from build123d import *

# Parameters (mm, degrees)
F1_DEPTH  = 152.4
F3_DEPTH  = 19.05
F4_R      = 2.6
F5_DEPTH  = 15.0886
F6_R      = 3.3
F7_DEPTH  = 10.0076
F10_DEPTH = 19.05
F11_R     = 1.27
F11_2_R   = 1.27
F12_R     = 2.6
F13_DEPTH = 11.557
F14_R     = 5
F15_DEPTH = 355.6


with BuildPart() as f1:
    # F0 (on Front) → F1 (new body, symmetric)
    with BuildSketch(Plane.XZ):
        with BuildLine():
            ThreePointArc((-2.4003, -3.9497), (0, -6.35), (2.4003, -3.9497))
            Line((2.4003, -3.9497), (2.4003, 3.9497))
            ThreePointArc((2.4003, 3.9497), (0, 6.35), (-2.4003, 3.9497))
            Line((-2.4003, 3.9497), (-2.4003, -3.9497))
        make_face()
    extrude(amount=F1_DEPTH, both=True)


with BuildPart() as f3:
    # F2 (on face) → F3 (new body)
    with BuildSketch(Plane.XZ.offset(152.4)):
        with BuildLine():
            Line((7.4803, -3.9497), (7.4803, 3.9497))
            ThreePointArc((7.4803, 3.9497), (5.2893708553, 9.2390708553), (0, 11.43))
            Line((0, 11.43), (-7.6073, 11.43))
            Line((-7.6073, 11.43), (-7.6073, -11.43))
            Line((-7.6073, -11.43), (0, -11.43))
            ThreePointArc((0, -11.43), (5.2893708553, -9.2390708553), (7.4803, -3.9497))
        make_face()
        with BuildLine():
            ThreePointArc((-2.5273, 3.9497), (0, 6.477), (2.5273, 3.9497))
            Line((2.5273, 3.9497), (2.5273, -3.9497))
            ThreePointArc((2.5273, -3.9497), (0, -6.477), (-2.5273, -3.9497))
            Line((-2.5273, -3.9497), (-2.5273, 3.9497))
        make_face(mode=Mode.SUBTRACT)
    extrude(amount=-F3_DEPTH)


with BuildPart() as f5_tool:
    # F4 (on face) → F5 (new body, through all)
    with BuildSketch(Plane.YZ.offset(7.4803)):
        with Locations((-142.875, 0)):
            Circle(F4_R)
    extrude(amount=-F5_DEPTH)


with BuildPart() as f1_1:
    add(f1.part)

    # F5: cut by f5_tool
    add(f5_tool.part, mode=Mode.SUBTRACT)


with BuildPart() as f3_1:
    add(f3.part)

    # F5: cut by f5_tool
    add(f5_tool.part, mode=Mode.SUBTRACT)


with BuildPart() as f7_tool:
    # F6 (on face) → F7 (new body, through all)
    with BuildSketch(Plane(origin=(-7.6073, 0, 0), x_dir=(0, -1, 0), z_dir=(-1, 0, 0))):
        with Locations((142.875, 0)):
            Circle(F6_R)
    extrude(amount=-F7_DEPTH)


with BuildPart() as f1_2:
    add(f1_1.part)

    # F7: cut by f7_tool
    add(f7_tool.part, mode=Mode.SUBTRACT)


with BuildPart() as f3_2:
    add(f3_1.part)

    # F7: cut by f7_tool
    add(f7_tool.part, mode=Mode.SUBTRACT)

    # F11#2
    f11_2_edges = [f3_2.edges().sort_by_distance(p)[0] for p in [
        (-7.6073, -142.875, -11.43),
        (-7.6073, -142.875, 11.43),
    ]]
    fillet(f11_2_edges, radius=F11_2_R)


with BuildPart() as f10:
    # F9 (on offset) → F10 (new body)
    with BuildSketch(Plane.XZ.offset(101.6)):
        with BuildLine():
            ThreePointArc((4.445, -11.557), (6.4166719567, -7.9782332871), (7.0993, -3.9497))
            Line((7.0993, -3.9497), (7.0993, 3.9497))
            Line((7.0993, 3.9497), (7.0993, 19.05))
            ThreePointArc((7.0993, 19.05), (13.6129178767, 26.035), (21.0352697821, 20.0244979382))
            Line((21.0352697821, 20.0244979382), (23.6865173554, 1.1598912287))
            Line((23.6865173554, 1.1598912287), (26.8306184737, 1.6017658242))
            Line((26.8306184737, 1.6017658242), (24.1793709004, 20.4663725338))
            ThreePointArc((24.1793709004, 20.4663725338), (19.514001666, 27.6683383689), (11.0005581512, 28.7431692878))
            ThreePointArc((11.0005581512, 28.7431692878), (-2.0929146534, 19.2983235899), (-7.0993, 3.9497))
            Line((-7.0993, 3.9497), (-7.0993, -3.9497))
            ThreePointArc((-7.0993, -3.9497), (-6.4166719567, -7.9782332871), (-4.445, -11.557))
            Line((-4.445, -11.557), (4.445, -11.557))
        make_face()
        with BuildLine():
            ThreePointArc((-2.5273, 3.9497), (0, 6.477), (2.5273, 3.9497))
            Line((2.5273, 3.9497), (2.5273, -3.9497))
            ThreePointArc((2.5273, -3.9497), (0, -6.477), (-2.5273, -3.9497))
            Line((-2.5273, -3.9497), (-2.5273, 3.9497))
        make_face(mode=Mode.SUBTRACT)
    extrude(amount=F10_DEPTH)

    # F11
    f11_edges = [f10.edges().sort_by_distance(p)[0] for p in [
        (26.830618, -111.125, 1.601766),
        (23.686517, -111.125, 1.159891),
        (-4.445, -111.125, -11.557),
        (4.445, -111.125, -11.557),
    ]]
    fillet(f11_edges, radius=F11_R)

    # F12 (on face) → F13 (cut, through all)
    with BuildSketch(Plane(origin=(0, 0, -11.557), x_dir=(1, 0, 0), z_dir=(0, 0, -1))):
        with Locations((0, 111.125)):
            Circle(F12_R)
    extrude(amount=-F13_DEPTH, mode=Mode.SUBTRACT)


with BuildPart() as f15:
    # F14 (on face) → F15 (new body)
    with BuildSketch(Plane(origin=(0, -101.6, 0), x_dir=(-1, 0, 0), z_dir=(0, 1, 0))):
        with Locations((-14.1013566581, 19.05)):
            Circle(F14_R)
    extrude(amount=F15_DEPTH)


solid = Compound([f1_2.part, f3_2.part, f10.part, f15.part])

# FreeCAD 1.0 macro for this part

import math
import FreeCAD as App
import Part
import Sketcher
Q = App.Units.Quantity


def edges_at(feature, points):
    """Names of the edges that pass closest to the given points."""
    edges = feature.Shape.Edges
    near = lambda p: min(range(len(edges)), key=lambda i: edges[i].distToShape(Part.Vertex(*p))[0])
    return sorted({f"Edge{near(p) + 1}" for p in points})

doc = App.newDocument("Part")
body = doc.addObject("PartDesign::Body", "Body")

# Sketch on XZ plane
sketch1 = body.newObject("Sketcher::SketchObject", "Sketch")
sketch1.AttachmentSupport = (doc.getObject("XZ_Plane"), [""])
sketch1.MapMode = "FlatFace"
sketch1.addGeometry([
    Part.ArcOfCircle(Part.Circle(App.Vector(0, -3.9, 0), App.Vector(0, 0, 1), 2.4), math.radians(180), math.radians(360)),
    Part.LineSegment(App.Vector(2.4, -3.9, 0), App.Vector(2.4, 3.9, 0)),
    Part.ArcOfCircle(Part.Circle(App.Vector(0, 3.9, 0), App.Vector(0, 0, 1), 2.4), math.radians(0), math.radians(180)),
    Part.LineSegment(App.Vector(-2.4, 3.9, 0), App.Vector(-2.4, -3.9, 0)),
], False)
sketch1.addConstraint([
    Sketcher.Constraint("Tangent", 0, 2, 1, 1),
    Sketcher.Constraint("Tangent", 1, 2, 2, 1),
    Sketcher.Constraint("Tangent", 2, 2, 3, 1),
    Sketcher.Constraint("Tangent", 3, 2, 0, 1),
    Sketcher.Constraint("Vertical", 1),
    Sketcher.Constraint("Vertical", 3),
    Sketcher.Constraint("Symmetric", 0, 3, 2, 3, -1, 1),
    Sketcher.Constraint("Radius", 0, Q("0.0945 in")),
    Sketcher.Constraint("DistanceY", 1, 1, 1, 2, Q("0.311 in")),
])
pad1 = body.newObject("PartDesign::Pad", "Pad")
pad1.Profile = sketch1
pad1.Length = Q("12 in")
pad1.Midplane = True
body2 = doc.addObject("PartDesign::Body", "Body001")

# Sketch on XZ plane
sketch2 = body2.newObject("Sketcher::SketchObject", "Sketch001")
sketch2.AttachmentSupport = (doc.getObject("XZ_Plane001"), [""])
sketch2.MapMode = "FlatFace"
sketch2.AttachmentOffset = App.Placement(App.Vector(0, 0, 6 * 25.4), App.Rotation())
sketch2.addGeometry([
    Part.LineSegment(App.Vector(7.5, -3.9, 0), App.Vector(7.5, 3.9, 0)),  # 0
    Part.ArcOfCircle(Part.Circle(App.Vector(0, 3.9, 0), App.Vector(0, 0, 1), 7.5), math.radians(0), math.radians(90)),  # 1
    Part.LineSegment(App.Vector(0, 11.4, 0), App.Vector(-7.6, 11.4, 0)),  # 2
    Part.LineSegment(App.Vector(-7.6, 11.4, 0), App.Vector(-7.6, -11.4, 0)),  # 3
    Part.LineSegment(App.Vector(-7.6, -11.4, 0), App.Vector(0, -11.4, 0)),  # 4
    Part.ArcOfCircle(Part.Circle(App.Vector(0, -3.9, 0), App.Vector(0, 0, 1), 7.5), math.radians(-90), math.radians(0)),  # 5
    Part.LineSegment(App.Vector(-2.5, -3.9, 0), App.Vector(-2.5, 3.9, 0)),  # 6
    Part.ArcOfCircle(Part.Circle(App.Vector(0, 3.9, 0), App.Vector(0, 0, 1), 2.5), math.radians(0), math.radians(180)),  # 7
    Part.LineSegment(App.Vector(2.5, 3.9, 0), App.Vector(2.5, -3.9, 0)),  # 8
    Part.ArcOfCircle(Part.Circle(App.Vector(0, -3.9, 0), App.Vector(0, 0, 1), 2.5), math.radians(180), math.radians(360)),  # 9
], False)
sketch2.addConstraint([
    Sketcher.Constraint("Tangent", 0, 2, 1, 1),
    Sketcher.Constraint("Tangent", 1, 2, 2, 1),
    Sketcher.Constraint("Coincident", 2, 2, 3, 1),
    Sketcher.Constraint("Coincident", 3, 2, 4, 1),
    Sketcher.Constraint("Tangent", 4, 2, 5, 1),
    Sketcher.Constraint("Tangent", 5, 2, 0, 1),
    Sketcher.Constraint("Tangent", 6, 2, 7, 2),
    Sketcher.Constraint("Tangent", 7, 1, 8, 1),
    Sketcher.Constraint("Tangent", 8, 2, 9, 2),
    Sketcher.Constraint("Tangent", 9, 1, 6, 1),
    Sketcher.Constraint("Vertical", 0),
    Sketcher.Constraint("Horizontal", 2),
    Sketcher.Constraint("Vertical", 3),
    Sketcher.Constraint("Horizontal", 4),
    Sketcher.Constraint("Vertical", 6),
    Sketcher.Constraint("Vertical", 8),
    Sketcher.Constraint("Coincident", 7, 3, 1, 3),
    Sketcher.Constraint("Coincident", 9, 3, 5, 3),
    Sketcher.Constraint("Symmetric", 1, 3, 5, 3, -1, 1),
    Sketcher.Constraint("DistanceY", 3, 2, 3, 1, Q("0.9 in")),
    Sketcher.Constraint("Radius", 1, Q("0.2945 in")),
    Sketcher.Constraint("Radius", 7, Q("0.0995 in")),
    Sketcher.Constraint("DistanceX", 2, 2, 2, 1, Q("0.2995 in")),
])
pad2 = body2.newObject("PartDesign::Pad", "Pad001")
pad2.Profile = sketch2
pad2.Length = Q("0.75 in")
pad2.Reversed = True
body3 = doc.addObject("PartDesign::Body", "Body002")

# Sketch on YZ plane
sketch3 = body3.newObject("Sketcher::SketchObject", "Sketch002")
sketch3.AttachmentSupport = (doc.getObject("YZ_Plane002"), [""])
sketch3.MapMode = "FlatFace"
sketch3.AttachmentOffset = App.Placement(App.Vector(0, 0, 0.2945 * 25.4), App.Rotation())
sketch3.addGeometry(Part.Circle(App.Vector(-142.9, 0, 0), App.Vector(0, 0, 1), 2.6), False)
sketch3.addConstraint([
    Sketcher.Constraint("PointOnObject", 0, 3, -1),
    Sketcher.Constraint("Diameter", 0, Q("5.2 mm")),
    Sketcher.Constraint("DistanceX", 0, 3, -1, 1, Q("5.625 in")),
])
pad3 = body3.newObject("PartDesign::Pad", "Pad002")
pad3.Profile = sketch3
pad3.Length = 15.0886
pad3.Reversed = True
doc.recompute()

body4 = doc.addObject("PartDesign::Body", "Body003")
body4.BaseFeature = body3
boolean = body.newObject("PartDesign::Boolean", "Boolean")
boolean.Type = "Cut"
boolean.addObjects([body4])
doc.recompute()

boolean2 = body2.newObject("PartDesign::Boolean", "Boolean001")
boolean2.Type = "Cut"
boolean2.addObjects([body3])
body5 = doc.addObject("PartDesign::Body", "Body004")

# Sketch on YZ plane
sketch4 = body5.newObject("Sketcher::SketchObject", "Sketch003")
sketch4.AttachmentSupport = (doc.getObject("YZ_Plane004"), [""])
sketch4.MapMode = "FlatFace"
sketch4.AttachmentOffset = App.Placement(App.Vector(0, 0, -0.2995 * 25.4), App.Rotation())
sketch4.addGeometry(Part.Circle(App.Vector(-142.9, 0, 0), App.Vector(0, 0, 1), 3.3), False)
sketch4.addConstraint([
    Sketcher.Constraint("PointOnObject", 0, 3, -1),
    Sketcher.Constraint("Diameter", 0, Q("6.6 mm")),
    Sketcher.Constraint("DistanceX", 0, 3, -1, 1, Q("5.625 in")),
])
pad4 = body5.newObject("PartDesign::Pad", "Pad003")
pad4.Profile = sketch4
pad4.Length = Q("0.394 in")
doc.recompute()

body6 = doc.addObject("PartDesign::Body", "Body005")
body6.BaseFeature = body5
boolean3 = body.newObject("PartDesign::Boolean", "Boolean002")
boolean3.Type = "Cut"
boolean3.addObjects([body6])
doc.recompute()

boolean4 = body2.newObject("PartDesign::Boolean", "Boolean003")
boolean4.Type = "Cut"
boolean4.addObjects([body5])
doc.recompute()

fillet = body2.newObject("PartDesign::Fillet", "Fillet")
fillet.Base = (boolean4, edges_at(boolean4, [(-7.607, -142.875, -11.43), (-7.607, -142.875, 11.43)]))
fillet.Radius = Q("0.05 in")
body7 = doc.addObject("PartDesign::Body", "Body006")

# Sketch on XZ plane
sketch5 = body7.newObject("Sketcher::SketchObject", "Sketch004")
sketch5.AttachmentSupport = (doc.getObject("XZ_Plane006"), [""])
sketch5.MapMode = "FlatFace"
sketch5.AttachmentOffset = App.Placement(App.Vector(0, 0, 4 * 25.4), App.Rotation())
sketch5.addGeometry([
    Part.ArcOfCircle(Part.Circle(App.Vector(-5.1, -3.9, 0), App.Vector(0, 0, 1), 12.2), math.radians(-38), math.radians(0)),  # 0
    Part.LineSegment(App.Vector(7.1, -3.9, 0), App.Vector(7.1, 19.1, 0)),  # 1
    Part.ArcOfCircle(Part.Circle(App.Vector(14.1, 19.1, 0), App.Vector(0, 0, 1), 7), math.radians(8), math.radians(180)),  # 2
    Part.LineSegment(App.Vector(21, 20, 0), App.Vector(23.7, 1.2, 0)),  # 3
    Part.LineSegment(App.Vector(23.7, 1.2, 0), App.Vector(26.8, 1.6, 0)),  # 4
    Part.LineSegment(App.Vector(26.8, 1.6, 0), App.Vector(24.2, 20.5, 0)),  # 5
    Part.ArcOfCircle(Part.Circle(App.Vector(14.1, 19.1, 0), App.Vector(0, 0, 1), 10.2), math.radians(8), math.radians(108)),  # 6
    Part.ArcOfCircle(Part.Circle(App.Vector(18.9, 3.9, 0), App.Vector(0, 0, 1), 26), math.radians(108), math.radians(180)),  # 7
    Part.LineSegment(App.Vector(-7.1, 3.9, 0), App.Vector(-7.1, -3.9, 0)),  # 8
    Part.ArcOfCircle(Part.Circle(App.Vector(5.1, -3.9, 0), App.Vector(0, 0, 1), 12.2), math.radians(180), math.radians(218)),  # 9
    Part.LineSegment(App.Vector(-4.4, -11.6, 0), App.Vector(4.4, -11.6, 0)),  # 10
    Part.LineSegment(App.Vector(-2.5, -3.9, 0), App.Vector(-2.5, 3.9, 0)),  # 11
    Part.ArcOfCircle(Part.Circle(App.Vector(0, 3.9, 0), App.Vector(0, 0, 1), 2.5), math.radians(0), math.radians(180)),  # 12
    Part.LineSegment(App.Vector(2.5, 3.9, 0), App.Vector(2.5, -3.9, 0)),  # 13
    Part.ArcOfCircle(Part.Circle(App.Vector(0, -3.9, 0), App.Vector(0, 0, 1), 2.5), math.radians(180), math.radians(360)),  # 14
], False)
sketch5.addConstraint([
    Sketcher.Constraint("Tangent", 0, 2, 1, 1),
    Sketcher.Constraint("Tangent", 1, 2, 2, 2),
    Sketcher.Constraint("Tangent", 2, 1, 3, 1),
    Sketcher.Constraint("Coincident", 3, 2, 4, 1),
    Sketcher.Constraint("Coincident", 4, 2, 5, 1),
    Sketcher.Constraint("Tangent", 5, 2, 6, 1),
    Sketcher.Constraint("Tangent", 6, 2, 7, 1),
    Sketcher.Constraint("Tangent", 7, 2, 8, 1),
    Sketcher.Constraint("Tangent", 8, 2, 9, 1),
    Sketcher.Constraint("Coincident", 9, 2, 10, 1),
    Sketcher.Constraint("Coincident", 10, 2, 0, 1),
    Sketcher.Constraint("Tangent", 11, 2, 12, 2),
    Sketcher.Constraint("Tangent", 12, 1, 13, 1),
    Sketcher.Constraint("Tangent", 13, 2, 14, 2),
    Sketcher.Constraint("Tangent", 14, 1, 11, 1),
    Sketcher.Constraint("Vertical", 1),
    Sketcher.Constraint("Vertical", 8),
    Sketcher.Constraint("Horizontal", 10),
    Sketcher.Constraint("Vertical", 11),
    Sketcher.Constraint("Vertical", 13),
    Sketcher.Constraint("Coincident", 6, 3, 2, 3),
    Sketcher.Constraint("Equal", 0, 9),
    Sketcher.Constraint("Symmetric", 12, 3, 14, 3, -1, 1),
    Sketcher.Constraint("Symmetric", 0, 2, 7, 2, -1, 1),
    Sketcher.Constraint("Perpendicular", 3, 4),
    Sketcher.Constraint("Perpendicular", 4, 5),
    Sketcher.Constraint("Horizontal", 0, 3, 9, 3),
    Sketcher.Constraint("Horizontal", 7, 3, 12, 3),
    Sketcher.Constraint("Angle", 3, Q("-82 deg")),
    Sketcher.Constraint("DistanceX", 10, 1, 10, 2, Q("0.35 in")),
    Sketcher.Constraint("Radius", 12, Q("0.0995 in")),
    Sketcher.Constraint("Distance", 3, Q("0.75 in")),
    Sketcher.Constraint("DistanceY", 8, 2, 8, 1, Q("0.311 in")),
    Sketcher.Constraint("DistanceY", -1, 1, 2, 3, Q("0.75 in")),
    Sketcher.Constraint("DistanceX", 7, 2, 11, 2, Q("0.18 in")),
    Sketcher.Constraint("Distance", 4, Q("0.125 in")),
    Sketcher.Constraint("DistanceY", 9, 2, -1, 1, Q("0.455 in")),
    Sketcher.Constraint("Radius", 7, Q("26.03117 mm")),
])
pad5 = body7.newObject("PartDesign::Pad", "Pad004")
pad5.Profile = sketch5
pad5.Length = Q("0.75 in")
doc.recompute()

fillet2 = body7.newObject("PartDesign::Fillet", "Fillet001")
fillet2.Base = (pad5, edges_at(pad5, [
    (26.831, -111.125, 1.602),
    (23.687, -111.125, 1.16),
    (-4.445, -111.125, -11.557),
    (4.445, -111.125, -11.557),
]))
fillet2.Radius = Q("0.05 in")

# Sketch on XY plane
sketch6 = body7.newObject("Sketcher::SketchObject", "Sketch005")
sketch6.AttachmentSupport = (doc.getObject("XY_Plane006"), [""])
sketch6.MapMode = "FlatFace"
sketch6.AttachmentOffset = App.Placement(App.Vector(0, 0, -0.455 * 25.4), App.Rotation())
sketch6.addGeometry(Part.Circle(App.Vector(0, -111.1, 0), App.Vector(0, 0, 1), 2.6), False)
sketch6.addConstraint([
    Sketcher.Constraint("PointOnObject", 0, 3, -2),
    Sketcher.Constraint("Diameter", 0, Q("5.2 mm")),
    Sketcher.Constraint("DistanceY", 0, 3, -1, 1, Q("4.375 in")),
])
pocket1 = body7.newObject("PartDesign::Pocket", "Pocket")
pocket1.Profile = sketch6
pocket1.Length = Q("0.455 in")
pocket1.Reversed = True
body8 = doc.addObject("PartDesign::Body", "Body007")

# Sketch on XZ plane
sketch7 = body8.newObject("Sketcher::SketchObject", "Sketch006")
sketch7.AttachmentSupport = (doc.getObject("XZ_Plane007"), [""])
sketch7.MapMode = "FlatFace"
sketch7.AttachmentOffset = App.Placement(App.Vector(0, 0, 4 * 25.4), App.Rotation())
sketch7.addGeometry(Part.Circle(App.Vector(14, 19, 0), App.Vector(0, 0, 1), 5), False)
sketch7.addConstraint([
    Sketcher.Constraint("Diameter", 0, Q("10 mm")),
    Sketcher.Constraint("DistanceY", -1, 1, 0, 3, Q("0.75 in")),
    Sketcher.Constraint("DistanceX", -1, 1, 0, 3, Q("14.101357 mm")),
])
pad6 = body8.newObject("PartDesign::Pad", "Pad005")
pad6.Profile = sketch7
pad6.Length = Q("14 in")
pad6.Reversed = True

doc.recompute()
